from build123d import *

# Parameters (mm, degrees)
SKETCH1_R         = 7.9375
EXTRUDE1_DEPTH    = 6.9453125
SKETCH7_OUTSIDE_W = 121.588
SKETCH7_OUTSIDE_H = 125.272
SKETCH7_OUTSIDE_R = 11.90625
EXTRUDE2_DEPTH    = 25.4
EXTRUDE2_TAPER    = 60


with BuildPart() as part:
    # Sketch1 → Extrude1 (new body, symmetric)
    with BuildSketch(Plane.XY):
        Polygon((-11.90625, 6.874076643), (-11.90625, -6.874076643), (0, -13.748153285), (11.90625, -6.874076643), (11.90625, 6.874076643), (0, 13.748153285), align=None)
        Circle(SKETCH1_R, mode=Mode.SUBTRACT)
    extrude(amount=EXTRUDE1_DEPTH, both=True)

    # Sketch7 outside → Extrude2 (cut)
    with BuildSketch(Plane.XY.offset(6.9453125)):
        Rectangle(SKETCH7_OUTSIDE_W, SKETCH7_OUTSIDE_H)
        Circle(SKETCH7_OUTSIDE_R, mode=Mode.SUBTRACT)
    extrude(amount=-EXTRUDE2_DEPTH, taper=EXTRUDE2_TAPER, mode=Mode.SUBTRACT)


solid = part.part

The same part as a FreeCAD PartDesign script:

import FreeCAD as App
import Part
import Sketcher

V = App.Vector
Q = App.Units.Quantity

doc = App.newDocument("Part")
body = doc.addObject("PartDesign::Body", "Body")

# Sketch on XY plane
sketch1 = body.newObject("Sketcher::SketchObject", "Sketch")
sketch1.AttachmentSupport = (doc.getObject("XY_Plane"), [""])
sketch1.MapMode = "FlatFace"
sketch1.addGeometry([
    Part.LineSegment(V(-12, 7, 0), V(-12, -7, 0)),  # 0
    Part.LineSegment(V(-12, -7, 0), V(0, -14, 0)),  # 1
    Part.LineSegment(V(0, -14, 0), V(12, -7, 0)),  # 2
    Part.LineSegment(V(12, -7, 0), V(12, 7, 0)),  # 3
    Part.LineSegment(V(12, 7, 0), V(0, 14, 0)),  # 4
    Part.LineSegment(V(0, 14, 0), V(-12, 7, 0)),  # 5
    Part.Circle(V(0, 0, 0), V(0, 0, 1), 8),  # 6
], False)
sketch1.addConstraint([
    Sketcher.Constraint("Coincident", 0, 2, 1, 1),
    Sketcher.Constraint("Coincident", 1, 2, 2, 1),
    Sketcher.Constraint("Coincident", 2, 2, 3, 1),
    Sketcher.Constraint("Coincident", 3, 2, 4, 1),
    Sketcher.Constraint("Coincident", 4, 2, 5, 1),
    Sketcher.Constraint("Coincident", 5, 2, 0, 1),
    Sketcher.Constraint("Vertical", 0),
    Sketcher.Constraint("Vertical", 3),
    Sketcher.Constraint("Coincident", 6, 3, -1, 1),
    Sketcher.Constraint("Symmetric", 0, 2, 3, 2, -1, 1),
    Sketcher.Constraint("Symmetric", 1, 2, 4, 2, -1, 1),
    Sketcher.Constraint("PointOnObject", 1, 2, -2),
    Sketcher.Constraint("Parallel", 2, 5),
    Sketcher.Constraint("Horizontal", 0, 2, 2, 2),
    Sketcher.Constraint("Diameter", 6, Q("0.625 in")),
    Sketcher.Constraint("Angle", 1, Q("-30 deg")),
    Sketcher.Constraint("DistanceX", 0, 2, -1, 1, Q("0.46875 in")),
    Sketcher.Constraint("DistanceY", 0, 2, 0, 1, Q("13.748153 mm")),
])
pad1 = body.newObject("PartDesign::Pad", "Pad")
pad1.Profile = sketch1
pad1.Length = Q("0.546875 in")
pad1.Midplane = True

# Sketch on XY plane
sketch2 = body.newObject("Sketcher::SketchObject", "Sketch001")
sketch2.AttachmentSupport = (doc.getObject("XY_Plane"), [""])
sketch2.MapMode = "FlatFace"
sketch2.AttachmentOffset = App.Placement(V(0, 0, 6.945312), App.Rotation())
sketch2.addGeometry([
    Part.LineSegment(V(-61, 63, 0), V(-61, -63, 0)),  # 0
    Part.LineSegment(V(-61, -63, 0), V(61, -63, 0)),  # 1
    Part.LineSegment(V(61, -63, 0), V(61, 63, 0)),  # 2
    Part.LineSegment(V(61, 63, 0), V(-61, 63, 0)),  # 3
    Part.Circle(V(0, 0, 0), V(0, 0, 1), 12),  # 4
], False)
sketch2.addConstraint([
    Sketcher.Constraint("Coincident", 0, 2, 1, 1),
    Sketcher.Constraint("Coincident", 1, 2, 2, 1),
    Sketcher.Constraint("Coincident", 2, 2, 3, 1),
    Sketcher.Constraint("Coincident", 3, 2, 0, 1),
    Sketcher.Constraint("Vertical", 0),
    Sketcher.Constraint("Horizontal", 1),
    Sketcher.Constraint("Vertical", 2),
    Sketcher.Constraint("Horizontal", 3),
    Sketcher.Constraint("Coincident", 4, 3, -1, 1),
    Sketcher.Constraint("Symmetric", 0, 2, 2, 2, -1, 1),
    Sketcher.Constraint("Diameter", 4, Q("0.9375 in")),
    Sketcher.Constraint("DistanceX", 1, 1, 1, 2, Q("121.588 mm")),
    Sketcher.Constraint("DistanceY", 0, 2, 0, 1, Q("125.272 mm")),
])
pocket1 = body.newObject("PartDesign::Pocket", "Pocket")
pocket1.Profile = sketch2
pocket1.Length = Q("1 in")
pocket1.TaperAngle = 60

doc.recompute()
